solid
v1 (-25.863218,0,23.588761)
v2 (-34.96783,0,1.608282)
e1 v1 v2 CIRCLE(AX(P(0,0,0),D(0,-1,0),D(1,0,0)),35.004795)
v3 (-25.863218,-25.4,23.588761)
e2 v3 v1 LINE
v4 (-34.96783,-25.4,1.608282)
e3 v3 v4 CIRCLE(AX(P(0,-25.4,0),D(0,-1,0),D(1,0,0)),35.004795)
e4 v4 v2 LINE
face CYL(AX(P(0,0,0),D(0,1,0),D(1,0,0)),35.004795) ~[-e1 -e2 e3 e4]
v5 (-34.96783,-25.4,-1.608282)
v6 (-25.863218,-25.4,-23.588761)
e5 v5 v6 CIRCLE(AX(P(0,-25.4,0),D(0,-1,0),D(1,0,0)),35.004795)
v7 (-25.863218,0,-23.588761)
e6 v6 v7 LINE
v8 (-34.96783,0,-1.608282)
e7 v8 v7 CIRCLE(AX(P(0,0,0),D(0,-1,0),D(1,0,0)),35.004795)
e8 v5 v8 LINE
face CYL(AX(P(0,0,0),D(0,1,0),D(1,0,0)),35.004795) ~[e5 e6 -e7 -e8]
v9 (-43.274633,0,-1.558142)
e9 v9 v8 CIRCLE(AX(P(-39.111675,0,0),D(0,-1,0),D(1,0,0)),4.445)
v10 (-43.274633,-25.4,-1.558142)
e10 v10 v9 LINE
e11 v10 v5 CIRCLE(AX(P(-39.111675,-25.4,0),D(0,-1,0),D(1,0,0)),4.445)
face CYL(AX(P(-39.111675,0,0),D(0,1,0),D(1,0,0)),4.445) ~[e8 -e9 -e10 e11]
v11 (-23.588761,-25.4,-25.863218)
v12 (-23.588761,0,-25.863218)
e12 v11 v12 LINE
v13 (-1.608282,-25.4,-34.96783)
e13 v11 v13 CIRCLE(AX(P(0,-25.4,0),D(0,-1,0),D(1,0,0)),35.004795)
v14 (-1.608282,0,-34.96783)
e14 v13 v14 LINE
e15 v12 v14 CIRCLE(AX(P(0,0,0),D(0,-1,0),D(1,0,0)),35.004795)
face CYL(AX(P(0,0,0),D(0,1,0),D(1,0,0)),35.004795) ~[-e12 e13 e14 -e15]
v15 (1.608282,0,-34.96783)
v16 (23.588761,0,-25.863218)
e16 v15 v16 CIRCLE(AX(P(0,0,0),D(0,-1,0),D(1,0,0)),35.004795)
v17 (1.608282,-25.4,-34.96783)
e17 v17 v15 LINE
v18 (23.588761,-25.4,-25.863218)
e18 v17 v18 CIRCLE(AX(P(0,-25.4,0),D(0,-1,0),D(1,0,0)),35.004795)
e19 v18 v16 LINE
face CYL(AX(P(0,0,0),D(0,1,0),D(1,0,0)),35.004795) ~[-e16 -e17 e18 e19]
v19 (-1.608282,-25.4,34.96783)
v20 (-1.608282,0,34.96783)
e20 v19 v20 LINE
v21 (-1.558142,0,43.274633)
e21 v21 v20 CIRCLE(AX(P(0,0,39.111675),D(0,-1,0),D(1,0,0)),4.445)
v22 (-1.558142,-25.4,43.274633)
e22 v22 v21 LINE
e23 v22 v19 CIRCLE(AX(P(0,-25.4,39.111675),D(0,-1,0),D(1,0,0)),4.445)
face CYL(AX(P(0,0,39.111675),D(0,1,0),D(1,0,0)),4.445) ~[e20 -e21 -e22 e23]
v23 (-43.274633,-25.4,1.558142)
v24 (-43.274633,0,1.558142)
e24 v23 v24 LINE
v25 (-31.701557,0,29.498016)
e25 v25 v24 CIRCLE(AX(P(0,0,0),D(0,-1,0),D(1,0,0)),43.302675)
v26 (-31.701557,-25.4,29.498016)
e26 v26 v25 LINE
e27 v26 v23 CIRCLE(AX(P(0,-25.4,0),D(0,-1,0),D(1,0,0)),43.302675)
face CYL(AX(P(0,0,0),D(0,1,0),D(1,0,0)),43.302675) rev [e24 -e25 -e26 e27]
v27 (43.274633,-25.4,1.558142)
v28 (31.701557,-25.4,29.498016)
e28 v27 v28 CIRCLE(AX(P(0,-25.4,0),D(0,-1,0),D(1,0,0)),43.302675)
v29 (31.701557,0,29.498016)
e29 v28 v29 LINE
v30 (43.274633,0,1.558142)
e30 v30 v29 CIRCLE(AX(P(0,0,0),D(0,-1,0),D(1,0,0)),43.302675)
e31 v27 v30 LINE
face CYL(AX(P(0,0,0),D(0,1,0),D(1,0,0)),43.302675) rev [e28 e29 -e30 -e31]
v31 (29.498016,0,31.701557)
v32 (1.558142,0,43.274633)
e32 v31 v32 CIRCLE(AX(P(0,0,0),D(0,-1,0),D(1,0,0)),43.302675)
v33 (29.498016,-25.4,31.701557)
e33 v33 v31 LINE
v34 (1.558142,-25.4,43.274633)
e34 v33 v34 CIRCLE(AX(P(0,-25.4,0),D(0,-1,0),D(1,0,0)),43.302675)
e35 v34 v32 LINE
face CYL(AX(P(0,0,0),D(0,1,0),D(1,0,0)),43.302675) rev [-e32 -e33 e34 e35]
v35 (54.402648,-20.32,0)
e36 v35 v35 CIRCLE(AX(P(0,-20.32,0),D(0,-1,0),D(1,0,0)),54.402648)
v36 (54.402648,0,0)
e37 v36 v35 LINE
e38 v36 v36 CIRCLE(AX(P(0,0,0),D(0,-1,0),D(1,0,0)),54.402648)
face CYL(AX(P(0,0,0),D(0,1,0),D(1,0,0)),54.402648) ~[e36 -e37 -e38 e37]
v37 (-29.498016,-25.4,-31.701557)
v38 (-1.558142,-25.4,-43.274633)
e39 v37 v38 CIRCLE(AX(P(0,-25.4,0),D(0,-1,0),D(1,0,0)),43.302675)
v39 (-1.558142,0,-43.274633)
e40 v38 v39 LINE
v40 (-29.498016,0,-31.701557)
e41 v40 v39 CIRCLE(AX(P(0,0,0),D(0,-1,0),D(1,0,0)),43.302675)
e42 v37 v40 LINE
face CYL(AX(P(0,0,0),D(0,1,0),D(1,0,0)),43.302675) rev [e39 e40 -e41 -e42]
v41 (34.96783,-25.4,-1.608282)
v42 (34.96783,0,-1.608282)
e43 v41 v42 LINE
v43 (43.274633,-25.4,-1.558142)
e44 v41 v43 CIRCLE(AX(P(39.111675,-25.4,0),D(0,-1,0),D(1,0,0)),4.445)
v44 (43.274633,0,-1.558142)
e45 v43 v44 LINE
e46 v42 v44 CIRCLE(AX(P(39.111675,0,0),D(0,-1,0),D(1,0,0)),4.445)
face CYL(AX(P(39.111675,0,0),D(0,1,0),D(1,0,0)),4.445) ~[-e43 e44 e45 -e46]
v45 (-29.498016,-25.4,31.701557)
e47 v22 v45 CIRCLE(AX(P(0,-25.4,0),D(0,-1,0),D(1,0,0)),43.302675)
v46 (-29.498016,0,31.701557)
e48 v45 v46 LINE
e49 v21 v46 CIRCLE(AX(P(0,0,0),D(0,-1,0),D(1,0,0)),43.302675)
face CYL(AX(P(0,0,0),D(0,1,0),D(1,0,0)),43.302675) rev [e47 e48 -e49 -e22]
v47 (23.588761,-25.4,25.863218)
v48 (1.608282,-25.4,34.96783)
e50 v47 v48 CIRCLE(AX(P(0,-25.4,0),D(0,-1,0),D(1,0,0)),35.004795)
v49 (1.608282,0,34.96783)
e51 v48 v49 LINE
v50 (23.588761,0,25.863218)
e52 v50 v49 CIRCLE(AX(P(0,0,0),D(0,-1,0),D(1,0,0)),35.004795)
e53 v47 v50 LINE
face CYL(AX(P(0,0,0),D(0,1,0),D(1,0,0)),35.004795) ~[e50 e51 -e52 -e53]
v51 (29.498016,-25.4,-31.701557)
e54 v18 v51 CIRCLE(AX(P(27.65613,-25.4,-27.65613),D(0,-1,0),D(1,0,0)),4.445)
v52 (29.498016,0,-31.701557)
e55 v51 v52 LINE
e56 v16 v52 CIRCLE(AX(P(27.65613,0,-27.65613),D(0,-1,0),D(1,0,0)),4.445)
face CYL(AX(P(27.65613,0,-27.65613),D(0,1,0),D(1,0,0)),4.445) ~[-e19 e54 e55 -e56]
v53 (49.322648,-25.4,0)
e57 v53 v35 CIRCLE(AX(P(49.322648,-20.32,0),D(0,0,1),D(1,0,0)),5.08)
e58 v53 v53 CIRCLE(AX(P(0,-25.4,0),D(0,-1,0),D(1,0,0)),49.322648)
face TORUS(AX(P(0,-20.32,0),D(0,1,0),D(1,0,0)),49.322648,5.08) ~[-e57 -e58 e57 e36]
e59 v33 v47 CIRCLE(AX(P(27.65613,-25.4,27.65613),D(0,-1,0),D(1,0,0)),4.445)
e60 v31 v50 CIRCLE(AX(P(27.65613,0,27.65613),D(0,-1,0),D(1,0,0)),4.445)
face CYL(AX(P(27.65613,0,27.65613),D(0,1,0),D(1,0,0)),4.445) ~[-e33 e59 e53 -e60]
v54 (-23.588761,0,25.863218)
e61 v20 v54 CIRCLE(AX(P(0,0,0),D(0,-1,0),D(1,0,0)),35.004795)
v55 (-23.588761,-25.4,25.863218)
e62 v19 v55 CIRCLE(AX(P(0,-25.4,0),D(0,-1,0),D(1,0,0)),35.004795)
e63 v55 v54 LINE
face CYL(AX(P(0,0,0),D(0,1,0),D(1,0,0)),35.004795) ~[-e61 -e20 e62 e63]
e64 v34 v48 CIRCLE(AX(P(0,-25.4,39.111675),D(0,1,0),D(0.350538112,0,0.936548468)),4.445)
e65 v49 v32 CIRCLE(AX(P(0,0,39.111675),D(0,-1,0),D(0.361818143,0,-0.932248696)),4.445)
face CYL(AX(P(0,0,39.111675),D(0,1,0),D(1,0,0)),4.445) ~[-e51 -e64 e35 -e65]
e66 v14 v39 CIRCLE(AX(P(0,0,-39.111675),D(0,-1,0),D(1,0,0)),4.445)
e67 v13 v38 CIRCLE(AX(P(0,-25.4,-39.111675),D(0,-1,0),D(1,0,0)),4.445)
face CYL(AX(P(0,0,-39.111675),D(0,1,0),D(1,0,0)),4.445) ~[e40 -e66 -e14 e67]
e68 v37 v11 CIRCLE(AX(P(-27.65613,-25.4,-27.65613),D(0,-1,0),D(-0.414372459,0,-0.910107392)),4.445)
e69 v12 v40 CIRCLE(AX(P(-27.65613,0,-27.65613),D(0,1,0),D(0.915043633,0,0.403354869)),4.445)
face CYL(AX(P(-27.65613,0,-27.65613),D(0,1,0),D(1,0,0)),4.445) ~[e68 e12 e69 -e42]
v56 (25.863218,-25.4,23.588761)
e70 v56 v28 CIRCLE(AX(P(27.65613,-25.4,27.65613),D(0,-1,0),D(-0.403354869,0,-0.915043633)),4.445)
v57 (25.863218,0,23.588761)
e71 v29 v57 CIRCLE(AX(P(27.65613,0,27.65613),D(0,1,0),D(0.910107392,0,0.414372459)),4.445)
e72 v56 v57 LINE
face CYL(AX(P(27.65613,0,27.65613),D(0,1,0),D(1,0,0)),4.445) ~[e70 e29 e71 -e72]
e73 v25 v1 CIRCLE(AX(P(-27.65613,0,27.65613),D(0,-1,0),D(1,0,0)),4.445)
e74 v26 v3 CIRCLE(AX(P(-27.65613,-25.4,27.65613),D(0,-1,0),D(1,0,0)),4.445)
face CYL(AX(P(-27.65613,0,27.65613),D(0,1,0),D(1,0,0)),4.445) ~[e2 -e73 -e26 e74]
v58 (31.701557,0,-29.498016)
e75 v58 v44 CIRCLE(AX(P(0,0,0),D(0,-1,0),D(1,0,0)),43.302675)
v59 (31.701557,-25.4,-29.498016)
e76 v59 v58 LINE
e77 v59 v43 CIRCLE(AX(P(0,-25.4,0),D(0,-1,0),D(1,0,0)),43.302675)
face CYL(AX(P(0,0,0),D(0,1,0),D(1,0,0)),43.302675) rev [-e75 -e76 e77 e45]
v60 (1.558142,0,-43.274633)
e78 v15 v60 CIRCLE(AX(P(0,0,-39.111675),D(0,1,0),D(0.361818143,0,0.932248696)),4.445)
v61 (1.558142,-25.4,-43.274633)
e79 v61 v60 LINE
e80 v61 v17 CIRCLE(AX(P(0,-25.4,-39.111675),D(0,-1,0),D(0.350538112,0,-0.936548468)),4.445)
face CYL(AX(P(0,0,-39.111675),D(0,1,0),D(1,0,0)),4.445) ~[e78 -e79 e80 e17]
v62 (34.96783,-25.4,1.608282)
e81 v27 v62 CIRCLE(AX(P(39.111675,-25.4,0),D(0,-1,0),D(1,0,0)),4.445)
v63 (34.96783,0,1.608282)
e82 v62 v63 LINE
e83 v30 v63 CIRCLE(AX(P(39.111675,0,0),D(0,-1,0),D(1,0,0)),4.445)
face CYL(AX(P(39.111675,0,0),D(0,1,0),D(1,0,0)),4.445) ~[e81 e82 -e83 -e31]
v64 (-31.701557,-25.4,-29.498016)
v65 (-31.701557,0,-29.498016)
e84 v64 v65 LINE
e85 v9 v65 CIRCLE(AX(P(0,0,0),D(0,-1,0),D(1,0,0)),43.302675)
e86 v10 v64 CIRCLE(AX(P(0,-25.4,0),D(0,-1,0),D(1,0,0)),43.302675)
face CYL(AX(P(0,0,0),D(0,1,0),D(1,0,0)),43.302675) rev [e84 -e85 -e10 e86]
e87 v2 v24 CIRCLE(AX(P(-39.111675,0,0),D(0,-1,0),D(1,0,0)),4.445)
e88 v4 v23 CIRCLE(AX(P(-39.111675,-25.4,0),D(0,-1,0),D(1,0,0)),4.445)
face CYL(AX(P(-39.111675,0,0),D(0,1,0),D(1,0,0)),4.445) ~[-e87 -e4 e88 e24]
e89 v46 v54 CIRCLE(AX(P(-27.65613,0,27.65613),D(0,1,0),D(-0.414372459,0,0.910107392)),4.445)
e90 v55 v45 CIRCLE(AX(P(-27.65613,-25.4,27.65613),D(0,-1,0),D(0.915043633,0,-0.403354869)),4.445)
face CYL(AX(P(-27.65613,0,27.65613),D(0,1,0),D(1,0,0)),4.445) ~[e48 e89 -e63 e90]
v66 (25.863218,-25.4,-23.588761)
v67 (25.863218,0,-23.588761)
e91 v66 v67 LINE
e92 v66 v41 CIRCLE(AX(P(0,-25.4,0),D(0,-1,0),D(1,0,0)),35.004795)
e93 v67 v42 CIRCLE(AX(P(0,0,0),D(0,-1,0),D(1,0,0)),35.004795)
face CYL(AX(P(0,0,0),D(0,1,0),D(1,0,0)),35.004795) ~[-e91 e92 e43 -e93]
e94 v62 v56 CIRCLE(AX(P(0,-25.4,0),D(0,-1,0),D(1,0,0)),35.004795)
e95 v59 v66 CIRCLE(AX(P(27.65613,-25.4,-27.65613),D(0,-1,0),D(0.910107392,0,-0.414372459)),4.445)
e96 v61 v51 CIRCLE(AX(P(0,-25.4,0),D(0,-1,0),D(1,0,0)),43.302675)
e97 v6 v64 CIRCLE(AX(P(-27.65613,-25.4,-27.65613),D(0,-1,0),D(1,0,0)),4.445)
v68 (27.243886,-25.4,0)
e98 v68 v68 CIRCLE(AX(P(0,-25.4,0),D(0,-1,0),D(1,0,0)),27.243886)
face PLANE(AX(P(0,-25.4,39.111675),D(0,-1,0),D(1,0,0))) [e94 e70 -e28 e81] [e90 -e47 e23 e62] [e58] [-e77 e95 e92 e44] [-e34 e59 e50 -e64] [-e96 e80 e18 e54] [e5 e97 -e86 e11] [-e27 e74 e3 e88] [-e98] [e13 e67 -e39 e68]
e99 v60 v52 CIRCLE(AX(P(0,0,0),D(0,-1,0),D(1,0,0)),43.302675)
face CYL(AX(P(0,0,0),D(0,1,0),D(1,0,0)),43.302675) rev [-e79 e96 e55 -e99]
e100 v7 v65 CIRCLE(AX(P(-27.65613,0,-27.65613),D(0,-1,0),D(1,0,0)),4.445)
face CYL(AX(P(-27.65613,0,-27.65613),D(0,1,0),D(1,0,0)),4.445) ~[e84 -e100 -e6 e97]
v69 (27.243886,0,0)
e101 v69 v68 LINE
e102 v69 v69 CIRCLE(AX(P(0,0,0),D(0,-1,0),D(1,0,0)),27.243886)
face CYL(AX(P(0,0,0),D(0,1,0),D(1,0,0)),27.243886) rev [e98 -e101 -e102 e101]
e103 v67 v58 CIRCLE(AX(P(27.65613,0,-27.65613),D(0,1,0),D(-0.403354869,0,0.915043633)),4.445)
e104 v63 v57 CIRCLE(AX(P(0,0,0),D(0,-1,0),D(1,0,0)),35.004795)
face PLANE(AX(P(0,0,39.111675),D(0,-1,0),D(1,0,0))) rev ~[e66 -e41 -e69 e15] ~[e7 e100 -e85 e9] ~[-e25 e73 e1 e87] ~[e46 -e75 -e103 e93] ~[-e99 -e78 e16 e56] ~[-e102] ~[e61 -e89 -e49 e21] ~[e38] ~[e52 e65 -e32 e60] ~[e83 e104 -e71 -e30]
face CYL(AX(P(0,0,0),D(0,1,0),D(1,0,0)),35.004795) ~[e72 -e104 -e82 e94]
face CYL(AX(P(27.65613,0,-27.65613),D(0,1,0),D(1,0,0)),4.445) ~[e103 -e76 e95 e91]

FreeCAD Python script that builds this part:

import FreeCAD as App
import Part
import Sketcher
Q = App.Units.Quantity


def edges_at(feature, points):
    """Names of the edges that pass closest to the given points."""
    edges = feature.Shape.Edges
    near = lambda p: min(range(len(edges)), key=lambda i: edges[i].distToShape(Part.Vertex(*p))[0])
    return sorted({f"Edge{near(p) + 1}" for p in points})

doc = App.newDocument("Part")
body = doc.addObject("PartDesign::Body", "Body")

# Sketch on XZ plane
sketch1 = body.newObject("Sketcher::SketchObject", "Sketch")
sketch1.AttachmentSupport = (doc.getObject("XZ_Plane"), [""])
sketch1.MapMode = "FlatFace"
sketch1.addGeometry([
    Part.Circle(App.Vector(0, 0, 0), App.Vector(0, 0, 1), 54),
    Part.Circle(App.Vector(0, 0, 0), App.Vector(0, 0, 1), 43),
], False)
sketch1.addConstraint([
    Sketcher.Constraint("Coincident", 0, 3, -1, 1),
    Sketcher.Constraint("Coincident", 1, 3, -1, 1),
    Sketcher.Constraint("Diameter", 1, Q("86.60535 mm")),
    Sketcher.Constraint("Diameter", 0, Q("108.805296 mm")),
])
pad1 = body.newObject("PartDesign::Pad", "Pad")
pad1.Profile = sketch1
pad1.Length = Q("1 in")
body2 = doc.addObject("PartDesign::Body", "Body001")

# Sketch on XZ plane
sketch2 = body2.newObject("Sketcher::SketchObject", "Sketch001")
sketch2.AttachmentSupport = (doc.getObject("XZ_Plane001"), [""])
sketch2.MapMode = "FlatFace"
sketch2.addGeometry([
    Part.Circle(App.Vector(0, 0, 0), App.Vector(0, 0, 1), 35),
    Part.Circle(App.Vector(0, 0, 0), App.Vector(0, 0, 1), 27),
], False)
sketch2.addConstraint([
    Sketcher.Constraint("Coincident", 0, 3, -1, 1),
    Sketcher.Constraint("Coincident", 1, 3, -1, 1),
    Sketcher.Constraint("Diameter", 0, Q("70.00959 mm")),
    Sketcher.Constraint("Diameter", 1, Q("54.487772 mm")),
])
pad2 = body2.newObject("PartDesign::Pad", "Pad001")
pad2.Profile = sketch2
pad2.Length = Q("1 in")
body.AllowCompound = True
doc.recompute()

boolean = body.newObject("PartDesign::Boolean", "Boolean")
boolean.Type = "Fuse"
boolean.addObjects([body2])

# Sketch on XZ plane
sketch3 = body.newObject("Sketcher::SketchObject", "Sketch002")
sketch3.AttachmentSupport = (doc.getObject("XZ_Plane"), [""])
sketch3.MapMode = "FlatFace"
sketch3.addGeometry([
    Part.Circle(App.Vector(0, 39.1, 0), App.Vector(0, 0, 1), 4.4),  # 0
    Part.Circle(App.Vector(-27.7, 27.7, 0), App.Vector(0, 0, 1), 4.4),  # 1
    Part.Circle(App.Vector(-39.1, 0, 0), App.Vector(0, 0, 1), 4.4),  # 2
    Part.Circle(App.Vector(-27.7, -27.7, 0), App.Vector(0, 0, 1), 4.4),  # 3
    Part.Circle(App.Vector(0, -39.1, 0), App.Vector(0, 0, 1), 4.4),  # 4
    Part.Circle(App.Vector(27.7, -27.7, 0), App.Vector(0, 0, 1), 4.4),  # 5
    Part.Circle(App.Vector(39.1, 0, 0), App.Vector(0, 0, 1), 4.4),  # 6
    Part.Circle(App.Vector(27.7, 27.7, 0), App.Vector(0, 0, 1), 4.4),  # 7
], False)
sketch3.addConstraint([
    Sketcher.Constraint("Equal", 0, 1),
    Sketcher.Constraint("Equal", 1, 2),
    Sketcher.Constraint("Equal", 2, 3),
    Sketcher.Constraint("Equal", 3, 4),
    Sketcher.Constraint("Equal", 4, 5),
    Sketcher.Constraint("Equal", 5, 6),
    Sketcher.Constraint("Equal", 6, 7),
    Sketcher.Constraint("Symmetric", 0, 3, 4, 3, -1, 1),
    Sketcher.Constraint("Symmetric", 1, 3, 5, 3, -1, 1),
    Sketcher.Constraint("Symmetric", 2, 3, 6, 3, -1, 1),
    Sketcher.Constraint("Symmetric", 3, 3, 7, 3, -1, 1),
    Sketcher.Constraint("Symmetric", 3, 3, 5, 3, -2),
    Sketcher.Constraint("PointOnObject", 0, 3, -2),
    Sketcher.Constraint("PointOnObject", 2, 3, -1),
    Sketcher.Constraint("Diameter", 0, Q("0.35 in")),
    Sketcher.Constraint("DistanceX", 1, 3, -1, 1, Q("27.65613 mm")),
    Sketcher.Constraint("DistanceY", -1, 1, 1, 3, Q("27.65613 mm")),
    Sketcher.Constraint("DistanceY", 4, 3, 0, 3, Q("78.22335 mm")),
    Sketcher.Constraint("DistanceX", 2, 3, -1, 1, Q("39.111675 mm")),
])
pad3 = body.newObject("PartDesign::Pad", "Pad002")
pad3.Profile = sketch3
pad3.Length = Q("1 in")
doc.recompute()

fillet = body.newObject("PartDesign::Fillet", "Fillet")
fillet.Base = (pad3, edges_at(pad3, [(-54.403, -25.4, 0)]))
fillet.Radius = Q("0.2 in")

doc.recompute()
